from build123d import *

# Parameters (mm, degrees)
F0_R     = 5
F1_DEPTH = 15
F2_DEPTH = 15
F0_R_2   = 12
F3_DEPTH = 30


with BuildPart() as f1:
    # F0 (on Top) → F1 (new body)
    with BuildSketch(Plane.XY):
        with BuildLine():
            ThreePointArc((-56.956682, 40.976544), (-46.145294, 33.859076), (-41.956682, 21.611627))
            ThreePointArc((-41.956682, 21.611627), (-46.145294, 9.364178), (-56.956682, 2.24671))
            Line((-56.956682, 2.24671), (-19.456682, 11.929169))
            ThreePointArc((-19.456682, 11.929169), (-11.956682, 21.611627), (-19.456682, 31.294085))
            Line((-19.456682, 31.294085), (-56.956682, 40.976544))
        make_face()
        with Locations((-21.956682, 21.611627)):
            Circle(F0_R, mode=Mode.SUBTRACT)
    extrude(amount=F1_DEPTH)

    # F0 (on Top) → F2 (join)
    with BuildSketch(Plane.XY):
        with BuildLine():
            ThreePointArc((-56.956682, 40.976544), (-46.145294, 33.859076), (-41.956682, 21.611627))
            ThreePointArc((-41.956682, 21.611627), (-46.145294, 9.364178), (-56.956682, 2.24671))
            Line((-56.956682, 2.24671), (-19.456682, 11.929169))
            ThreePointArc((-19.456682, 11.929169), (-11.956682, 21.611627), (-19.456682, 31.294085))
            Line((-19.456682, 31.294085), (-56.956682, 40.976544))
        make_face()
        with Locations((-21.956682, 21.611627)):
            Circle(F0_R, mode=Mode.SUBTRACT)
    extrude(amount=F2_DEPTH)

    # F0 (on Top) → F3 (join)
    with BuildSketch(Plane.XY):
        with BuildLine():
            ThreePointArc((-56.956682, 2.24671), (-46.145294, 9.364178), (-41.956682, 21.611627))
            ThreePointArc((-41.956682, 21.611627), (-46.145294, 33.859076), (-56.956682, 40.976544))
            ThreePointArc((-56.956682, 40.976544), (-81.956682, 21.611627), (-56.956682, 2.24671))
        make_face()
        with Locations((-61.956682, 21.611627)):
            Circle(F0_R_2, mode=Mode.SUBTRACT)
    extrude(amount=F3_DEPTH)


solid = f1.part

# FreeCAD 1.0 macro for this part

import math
import FreeCAD as App
import Part
import Sketcher

V = App.Vector
Q = App.Units.Quantity

doc = App.newDocument("Part")
body = doc.addObject("PartDesign::Body", "Body")

# Sketch on XY plane
sketch1 = body.newObject("Sketcher::SketchObject", "Sketch")
sketch1.AttachmentSupport = (doc.getObject("XY_Plane"), [""])
sketch1.MapMode = "FlatFace"
sketch1.addGeometry([
    Part.ArcOfCircle(Part.Circle(V(-61.956683, 21.611627, 0), V(0, 0, 1), 20.000001), math.radians(0.000001), math.radians(75.522486)),  # 0
    Part.ArcOfCircle(Part.Circle(V(-61.956683, 21.611627, 0), V(0, 0, 1), 20.000001), math.radians(-75.522486), math.radians(-0.000001)),  # 1
    Part.LineSegment(V(-56.956682, 2.24671, 0), V(-19.456682, 11.929169, 0)),  # 2
    Part.ArcOfCircle(Part.Circle(V(-21.956682, 21.611627, 0), V(0, 0, 1), 10), math.radians(-75.52249), math.radians(75.52249)),  # 3
    Part.LineSegment(V(-19.456682, 31.294085, 0), V(-56.956682, 40.976544, 0)),  # 4
    Part.Circle(V(-21.956682, 21.611627, 0), V(0, 0, 1), 5),  # 5
], False)
sketch1.addConstraint([
    Sketcher.Constraint("Tangent", 0, 1, 1, 2),
    Sketcher.Constraint("Tangent", 1, 1, 2, 1),
    Sketcher.Constraint("Tangent", 2, 2, 3, 1),
    Sketcher.Constraint("Tangent", 3, 2, 4, 1),
    Sketcher.Constraint("Tangent", 4, 2, 0, 2),
    Sketcher.Constraint("Coincident", 5, 3, 3, 3),
    Sketcher.Constraint("Equal", 0, 1),
    Sketcher.Constraint("Horizontal", 1, 3, 3, 3),
    Sketcher.Constraint("Horizontal", 5, 3, 0, 1),
    Sketcher.Constraint("Diameter", 5, Q("10 mm")),
    Sketcher.Constraint("Radius", 0, Q("20.000001 mm")),
    Sketcher.Constraint("Radius", 3, Q("10 mm")),
    Sketcher.Constraint("DistanceX", 0, 3, 3, 3, Q("40.000001 mm")),
    Sketcher.Constraint("DistanceX", 3, 3, -1, 1, Q("21.956682 mm")),
    Sketcher.Constraint("DistanceY", -1, 1, 1, 1, Q("2.24671 mm")),
])
pad1 = body.newObject("PartDesign::Pad", "Pad")
pad1.Profile = sketch1
pad1.Length = 15

# Sketch on XY plane
sketch2 = body.newObject("Sketcher::SketchObject", "Sketch001")
sketch2.AttachmentSupport = (doc.getObject("XY_Plane"), [""])
sketch2.MapMode = "FlatFace"
sketch2.addGeometry([
    Part.ArcOfCircle(Part.Circle(V(-61.956683, 21.611627, 0), V(0, 0, 1), 20.000001), math.radians(0.000001), math.radians(75.522486)),  # 0
    Part.ArcOfCircle(Part.Circle(V(-61.956683, 21.611627, 0), V(0, 0, 1), 20.000001), math.radians(-75.522486), math.radians(-0.000001)),  # 1
    Part.LineSegment(V(-56.956682, 2.24671, 0), V(-19.456682, 11.929169, 0)),  # 2
    Part.ArcOfCircle(Part.Circle(V(-21.956682, 21.611627, 0), V(0, 0, 1), 10), math.radians(-75.52249), math.radians(75.52249)),  # 3
    Part.LineSegment(V(-19.456682, 31.294085, 0), V(-56.956682, 40.976544, 0)),  # 4
    Part.Circle(V(-21.956682, 21.611627, 0), V(0, 0, 1), 5),  # 5
], False)
sketch2.addConstraint([
    Sketcher.Constraint("Tangent", 0, 1, 1, 2),
    Sketcher.Constraint("Tangent", 1, 1, 2, 1),
    Sketcher.Constraint("Tangent", 2, 2, 3, 1),
    Sketcher.Constraint("Tangent", 3, 2, 4, 1),
    Sketcher.Constraint("Tangent", 4, 2, 0, 2),
    Sketcher.Constraint("Coincident", 5, 3, 3, 3),
    Sketcher.Constraint("Equal", 0, 1),
    Sketcher.Constraint("Horizontal", 1, 3, 3, 3),
    Sketcher.Constraint("Horizontal", 5, 3, 0, 1),
    Sketcher.Constraint("Diameter", 5, Q("10 mm")),
    Sketcher.Constraint("Radius", 0, Q("20.000001 mm")),
    Sketcher.Constraint("Radius", 3, Q("10 mm")),
    Sketcher.Constraint("DistanceX", 0, 3, 3, 3, Q("40.000001 mm")),
    Sketcher.Constraint("DistanceX", 3, 3, -1, 1, Q("21.956682 mm")),
    Sketcher.Constraint("DistanceY", -1, 1, 1, 1, Q("2.24671 mm")),
])
pad2 = body.newObject("PartDesign::Pad", "Pad001")
pad2.Profile = sketch2
pad2.Length = 15

# Sketch on XY plane
sketch3 = body.newObject("Sketcher::SketchObject", "Sketch002")
sketch3.AttachmentSupport = (doc.getObject("XY_Plane"), [""])
sketch3.MapMode = "FlatFace"
sketch3.addGeometry([
    Part.ArcOfCircle(Part.Circle(V(-61.956683, 21.611627, 0), V(0, 0, 1), 20.000001), math.radians(-75.522486), math.radians(-0.000001)),
    Part.ArcOfCircle(Part.Circle(V(-61.956683, 21.611627, 0), V(0, 0, 1), 20.000001), math.radians(0.000001), math.radians(75.522486)),
    Part.ArcOfCircle(Part.Circle(V(-61.956682, 21.611627, 0), V(0, 0, 1), 20), math.radians(75.522489), math.radians(284.477511)),
    Part.Circle(V(-61.956682, 21.611627, 0), V(0, 0, 1), 12),
], False)
sketch3.addConstraint([
    Sketcher.Constraint("Tangent", 0, 2, 1, 1),
    Sketcher.Constraint("Tangent", 1, 2, 2, 1),
    Sketcher.Constraint("Tangent", 2, 2, 0, 1),
    Sketcher.Constraint("Coincident", 3, 3, 0, 3),
    Sketcher.Constraint("Horizontal", 3, 3, 0, 2),
    Sketcher.Constraint("Vertical", 1, 2, 2, 2),
    Sketcher.Constraint("Diameter", 3, Q("24 mm")),
    Sketcher.Constraint("Radius", 0, Q("20.000001 mm")),
    Sketcher.Constraint("DistanceX", 0, 3, 1, 2, Q("5.000001 mm")),
    Sketcher.Constraint("DistanceX", 2, 3, -1, 1, Q("61.956682 mm")),
    Sketcher.Constraint("DistanceY", -1, 1, 2, 2, Q("2.24671 mm")),
])
pad3 = body.newObject("PartDesign::Pad", "Pad002")
pad3.Profile = sketch3
pad3.Length = 30

doc.recompute()
